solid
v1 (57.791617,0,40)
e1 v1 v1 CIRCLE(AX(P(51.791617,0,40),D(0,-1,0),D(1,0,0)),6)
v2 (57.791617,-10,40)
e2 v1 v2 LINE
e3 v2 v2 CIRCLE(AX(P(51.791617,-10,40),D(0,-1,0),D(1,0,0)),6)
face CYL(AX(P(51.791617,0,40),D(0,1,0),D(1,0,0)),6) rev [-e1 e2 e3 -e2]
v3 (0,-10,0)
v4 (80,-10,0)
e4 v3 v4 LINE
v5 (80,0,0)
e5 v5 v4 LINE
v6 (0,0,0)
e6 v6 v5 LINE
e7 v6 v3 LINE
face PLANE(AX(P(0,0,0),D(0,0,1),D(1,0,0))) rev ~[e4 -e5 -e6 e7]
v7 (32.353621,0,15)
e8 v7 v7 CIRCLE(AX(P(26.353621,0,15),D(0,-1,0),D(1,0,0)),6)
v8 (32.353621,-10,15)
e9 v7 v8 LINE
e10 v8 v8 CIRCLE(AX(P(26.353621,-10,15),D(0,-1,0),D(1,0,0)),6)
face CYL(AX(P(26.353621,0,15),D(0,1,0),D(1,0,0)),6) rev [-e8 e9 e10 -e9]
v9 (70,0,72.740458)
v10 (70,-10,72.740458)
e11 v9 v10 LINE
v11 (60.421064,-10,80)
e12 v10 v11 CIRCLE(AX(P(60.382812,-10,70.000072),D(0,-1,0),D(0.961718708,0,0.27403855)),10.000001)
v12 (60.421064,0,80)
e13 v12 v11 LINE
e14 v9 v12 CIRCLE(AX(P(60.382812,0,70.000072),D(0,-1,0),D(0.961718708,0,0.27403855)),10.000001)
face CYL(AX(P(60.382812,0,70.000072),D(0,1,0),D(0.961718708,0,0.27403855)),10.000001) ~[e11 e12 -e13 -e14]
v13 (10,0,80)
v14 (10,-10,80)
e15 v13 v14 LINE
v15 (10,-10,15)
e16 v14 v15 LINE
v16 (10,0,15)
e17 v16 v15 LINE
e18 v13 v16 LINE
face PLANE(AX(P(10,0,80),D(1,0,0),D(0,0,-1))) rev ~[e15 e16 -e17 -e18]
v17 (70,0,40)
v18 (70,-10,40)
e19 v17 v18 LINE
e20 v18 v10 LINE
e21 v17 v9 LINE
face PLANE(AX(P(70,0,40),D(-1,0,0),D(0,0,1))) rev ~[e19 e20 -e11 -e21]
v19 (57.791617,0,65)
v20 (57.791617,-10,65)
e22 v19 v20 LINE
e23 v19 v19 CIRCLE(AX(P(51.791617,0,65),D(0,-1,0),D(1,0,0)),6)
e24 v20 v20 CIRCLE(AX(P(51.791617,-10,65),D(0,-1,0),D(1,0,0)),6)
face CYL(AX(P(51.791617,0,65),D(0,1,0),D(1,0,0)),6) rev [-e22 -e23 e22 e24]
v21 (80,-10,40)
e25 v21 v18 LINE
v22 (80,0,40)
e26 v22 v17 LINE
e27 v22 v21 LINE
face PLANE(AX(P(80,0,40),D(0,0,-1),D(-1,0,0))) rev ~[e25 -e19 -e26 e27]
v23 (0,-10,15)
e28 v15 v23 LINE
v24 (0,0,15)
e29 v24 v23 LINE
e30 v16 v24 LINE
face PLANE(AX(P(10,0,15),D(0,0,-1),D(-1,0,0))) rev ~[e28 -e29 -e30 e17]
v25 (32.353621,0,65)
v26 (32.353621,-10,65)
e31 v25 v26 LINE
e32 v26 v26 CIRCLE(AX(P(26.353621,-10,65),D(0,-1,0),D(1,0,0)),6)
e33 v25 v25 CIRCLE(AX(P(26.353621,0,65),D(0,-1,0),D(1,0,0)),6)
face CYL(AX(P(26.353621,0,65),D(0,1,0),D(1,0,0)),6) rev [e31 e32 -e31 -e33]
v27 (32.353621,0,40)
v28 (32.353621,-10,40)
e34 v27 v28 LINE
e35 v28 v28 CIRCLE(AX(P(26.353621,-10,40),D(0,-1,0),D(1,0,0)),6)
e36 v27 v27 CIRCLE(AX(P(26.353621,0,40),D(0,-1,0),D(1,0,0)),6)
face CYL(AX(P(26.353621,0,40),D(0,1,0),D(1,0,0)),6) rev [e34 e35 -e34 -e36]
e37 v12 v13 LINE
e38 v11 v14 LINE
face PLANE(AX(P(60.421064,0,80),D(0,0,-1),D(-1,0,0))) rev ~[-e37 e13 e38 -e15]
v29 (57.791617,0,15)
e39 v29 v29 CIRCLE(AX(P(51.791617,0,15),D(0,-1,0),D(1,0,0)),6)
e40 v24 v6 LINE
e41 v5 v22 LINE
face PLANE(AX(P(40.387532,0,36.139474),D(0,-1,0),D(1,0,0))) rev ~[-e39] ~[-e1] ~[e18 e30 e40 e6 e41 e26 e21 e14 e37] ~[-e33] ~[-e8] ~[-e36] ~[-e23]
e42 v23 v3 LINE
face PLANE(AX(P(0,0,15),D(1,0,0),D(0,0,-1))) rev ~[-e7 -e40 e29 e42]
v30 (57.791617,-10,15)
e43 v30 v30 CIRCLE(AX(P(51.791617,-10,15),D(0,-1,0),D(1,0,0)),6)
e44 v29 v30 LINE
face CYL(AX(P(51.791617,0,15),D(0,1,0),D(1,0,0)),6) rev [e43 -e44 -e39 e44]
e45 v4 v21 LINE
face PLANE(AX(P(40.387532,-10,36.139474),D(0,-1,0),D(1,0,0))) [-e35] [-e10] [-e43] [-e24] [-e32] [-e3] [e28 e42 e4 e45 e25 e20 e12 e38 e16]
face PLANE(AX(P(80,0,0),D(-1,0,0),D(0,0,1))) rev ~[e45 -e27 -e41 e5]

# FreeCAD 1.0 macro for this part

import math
import FreeCAD as App
import Part
import Sketcher
from FreeCAD import Vector
Q = App.Units.Quantity

doc = App.newDocument("Part")
body = doc.addObject("PartDesign::Body", "Body")

sketch1 = body.newObject("Sketcher::SketchObject", "Sketch")
sketch1.AttachmentSupport = (doc.getObject("XZ_Plane"), [""])
sketch1.MapMode = "FlatFace"
sketch1.addGeometry(Part.LineSegment(Vector(60, 80, 0), Vector(10, 80, 0)), False)
sketch1.addGeometry(Part.LineSegment(Vector(10, 80, 0), Vector(10, 15, 0)), False)
sketch1.addGeometry(Part.LineSegment(Vector(10, 15, 0), Vector(0, 15, 0)), False)
sketch1.addGeometry(Part.LineSegment(Vector(0, 15, 0), Vector(0, 0, 0)), False)
sketch1.addGeometry(Part.LineSegment(Vector(0, 0, 0), Vector(80, 0, 0)), False)
sketch1.addGeometry(Part.LineSegment(Vector(80, 0, 0), Vector(80, 40, 0)), False)
sketch1.addGeometry(Part.LineSegment(Vector(80, 40, 0), Vector(70, 40, 0)), False)
sketch1.addGeometry(Part.LineSegment(Vector(70, 40, 0), Vector(70, 73, 0)), False)
sketch1.addGeometry(Part.ArcOfCircle(Part.Circle(Vector(60, 70, 0), Vector(0, 0, 1), 10), math.radians(16), math.radians(90)), False)
sketch1.addGeometry(Part.Circle(Vector(26, 15, 0), Vector(0, 0, 1), 6), False)
sketch1.addGeometry(Part.Circle(Vector(26, 40, 0), Vector(0, 0, 1), 6), False)
sketch1.addGeometry(Part.Circle(Vector(52, 15, 0), Vector(0, 0, 1), 6), False)
sketch1.addGeometry(Part.Circle(Vector(52, 40, 0), Vector(0, 0, 1), 6), False)
sketch1.addGeometry(Part.Circle(Vector(26, 65, 0), Vector(0, 0, 1), 6), False)
sketch1.addGeometry(Part.Circle(Vector(52, 65, 0), Vector(0, 0, 1), 6), False)
sketch1.addConstraint(Sketcher.Constraint("Coincident", 0, 2, 1, 1))
sketch1.addConstraint(Sketcher.Constraint("Coincident", 1, 2, 2, 1))
sketch1.addConstraint(Sketcher.Constraint("Coincident", 2, 2, 3, 1))
sketch1.addConstraint(Sketcher.Constraint("Coincident", 3, 2, 4, 1))
sketch1.addConstraint(Sketcher.Constraint("Coincident", 4, 2, 5, 1))
sketch1.addConstraint(Sketcher.Constraint("Coincident", 5, 2, 6, 1))
sketch1.addConstraint(Sketcher.Constraint("Coincident", 6, 2, 7, 1))
sketch1.addConstraint(Sketcher.Constraint("Coincident", 7, 2, 8, 1))
sketch1.addConstraint(Sketcher.Constraint("Coincident", 8, 2, 0, 1))
sketch1.addConstraint(Sketcher.Constraint("Horizontal", 0))
sketch1.addConstraint(Sketcher.Constraint("Vertical", 1))
sketch1.addConstraint(Sketcher.Constraint("Horizontal", 2))
sketch1.addConstraint(Sketcher.Constraint("Vertical", 3))
sketch1.addConstraint(Sketcher.Constraint("Horizontal", 4))
sketch1.addConstraint(Sketcher.Constraint("Vertical", 5))
sketch1.addConstraint(Sketcher.Constraint("Horizontal", 6))
sketch1.addConstraint(Sketcher.Constraint("Vertical", 7))
sketch1.addConstraint(Sketcher.Constraint("Coincident", 3, 2, -1, 1))
sketch1.addConstraint(Sketcher.Constraint("Equal", 9, 10))
sketch1.addConstraint(Sketcher.Constraint("Equal", 10, 11))
sketch1.addConstraint(Sketcher.Constraint("Equal", 11, 12))
sketch1.addConstraint(Sketcher.Constraint("Equal", 12, 13))
sketch1.addConstraint(Sketcher.Constraint("Equal", 13, 14))
sketch1.addConstraint(Sketcher.Constraint("Horizontal", 9, 3, 11, 3))
sketch1.addConstraint(Sketcher.Constraint("Horizontal", 10, 3, 12, 3))
sketch1.addConstraint(Sketcher.Constraint("Horizontal", 13, 3, 14, 3))
sketch1.addConstraint(Sketcher.Constraint("Horizontal", 11, 3, 1, 2))
sketch1.addConstraint(Sketcher.Constraint("Horizontal", 12, 3, 5, 2))
sketch1.addConstraint(Sketcher.Constraint("Vertical", 9, 3, 10, 3))
sketch1.addConstraint(Sketcher.Constraint("Vertical", 11, 3, 12, 3))
sketch1.addConstraint(Sketcher.Constraint("Vertical", 10, 3, 13, 3))
sketch1.addConstraint(Sketcher.Constraint("Vertical", 12, 3, 14, 3))
sketch1.addConstraint(Sketcher.Constraint("Equal", 2, 6))
sketch1.addConstraint(Sketcher.Constraint("Diameter", 9, Q("12 mm")))
sketch1.addConstraint(Sketcher.Constraint("Radius", 8, Q("10.000001 mm")))
sketch1.addConstraint(Sketcher.Constraint("DistanceX", 2, 2, 2, 1, Q("10 mm")))
sketch1.addConstraint(Sketcher.Constraint("DistanceX", 4, 1, 4, 2, Q("80 mm")))
sketch1.addConstraint(Sketcher.Constraint("DistanceY", 1, 2, 1, 1, Q("65 mm")))
sketch1.addConstraint(Sketcher.Constraint("DistanceY", 3, 2, 3, 1, Q("15 mm")))
sketch1.addConstraint(Sketcher.Constraint("DistanceY", 5, 1, 5, 2, Q("40 mm")))
sketch1.addConstraint(Sketcher.Constraint("DistanceY", -1, 1, 13, 3, Q("65 mm")))
sketch1.addConstraint(Sketcher.Constraint("DistanceY", 7, 1, 7, 2, Q("32.740458 mm")))
sketch1.addConstraint(Sketcher.Constraint("DistanceX", 0, 2, 0, 1, Q("50.421064 mm")))
sketch1.addConstraint(Sketcher.Constraint("DistanceX", -1, 1, 9, 3, Q("26.353621 mm")))
sketch1.addConstraint(Sketcher.Constraint("DistanceX", -1, 1, 11, 3, Q("51.791617 mm")))
pad1 = body.newObject("PartDesign::Pad", "Pad")
pad1.Profile = sketch1
pad1.Length = 10

doc.recompute()
